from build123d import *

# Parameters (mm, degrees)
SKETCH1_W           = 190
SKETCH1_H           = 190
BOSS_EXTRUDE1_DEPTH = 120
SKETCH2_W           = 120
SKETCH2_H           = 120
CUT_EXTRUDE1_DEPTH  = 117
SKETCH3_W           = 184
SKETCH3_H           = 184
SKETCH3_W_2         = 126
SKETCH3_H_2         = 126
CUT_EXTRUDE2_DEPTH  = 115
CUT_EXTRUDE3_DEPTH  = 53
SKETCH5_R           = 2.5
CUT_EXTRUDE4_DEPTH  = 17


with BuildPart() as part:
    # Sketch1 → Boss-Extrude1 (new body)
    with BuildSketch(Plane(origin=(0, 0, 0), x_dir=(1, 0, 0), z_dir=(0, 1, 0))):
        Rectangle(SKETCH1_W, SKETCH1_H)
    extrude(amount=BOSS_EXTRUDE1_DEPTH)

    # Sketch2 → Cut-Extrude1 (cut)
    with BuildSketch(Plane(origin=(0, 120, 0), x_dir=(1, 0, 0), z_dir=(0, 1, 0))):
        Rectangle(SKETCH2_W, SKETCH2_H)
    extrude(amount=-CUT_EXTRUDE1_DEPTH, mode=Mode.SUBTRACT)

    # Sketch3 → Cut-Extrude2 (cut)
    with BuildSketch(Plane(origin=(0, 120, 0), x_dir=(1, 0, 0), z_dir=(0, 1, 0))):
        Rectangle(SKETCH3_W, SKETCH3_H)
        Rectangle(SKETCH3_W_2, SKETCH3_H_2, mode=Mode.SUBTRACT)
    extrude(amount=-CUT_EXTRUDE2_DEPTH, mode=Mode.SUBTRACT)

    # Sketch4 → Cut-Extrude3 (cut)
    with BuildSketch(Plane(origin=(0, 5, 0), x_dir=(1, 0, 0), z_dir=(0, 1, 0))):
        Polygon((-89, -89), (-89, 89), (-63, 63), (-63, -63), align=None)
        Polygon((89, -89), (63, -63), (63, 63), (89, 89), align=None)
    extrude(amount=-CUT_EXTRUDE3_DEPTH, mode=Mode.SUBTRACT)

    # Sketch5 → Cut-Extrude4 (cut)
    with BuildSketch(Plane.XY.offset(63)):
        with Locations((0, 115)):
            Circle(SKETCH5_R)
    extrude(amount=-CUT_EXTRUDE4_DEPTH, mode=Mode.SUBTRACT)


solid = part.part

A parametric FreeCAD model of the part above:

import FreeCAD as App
import Part
import Sketcher


def add_polygon(sketch, points):
    """Adds a closed chain of lines whose ends are joined by coincident constraints."""
    first, n = sketch.GeometryCount, len(points)
    for a, b in zip(points, points[1:] + points[:1]):
        sketch.addGeometry(Part.LineSegment(App.Vector(*a, 0), App.Vector(*b, 0)), False)
    for i in range(n):
        sketch.addConstraint(Sketcher.Constraint("Coincident", first + i, 2, first + (i + 1) % n, 1))

doc = App.newDocument("Part")
body = doc.addObject("PartDesign::Body", "Body")

# Sketch on XZ plane
sketch1 = body.newObject("Sketcher::SketchObject", "Sketch")
sketch1.AttachmentSupport = (doc.getObject("XZ_Plane"), [""])
sketch1.MapMode = "FlatFace"
add_polygon(sketch1, [(-95, -95), (-95, 95), (95, 95), (95, -95)])  # lines 0-3
sketch1.addConstraint([
    Sketcher.Constraint("Vertical", 0),
    Sketcher.Constraint("Horizontal", 1),
    Sketcher.Constraint("Vertical", 2),
    Sketcher.Constraint("Horizontal", 3),
    Sketcher.Constraint("Symmetric", 0, 2, 2, 2, -1, 1),
    Sketcher.Constraint("Equal", 3, 0),
    Sketcher.Constraint("DistanceX", 1, 1, 1, 2, 190.0),
])
pad1 = body.newObject("PartDesign::Pad", "Pad")
pad1.Profile = sketch1
pad1.Length = 120
pad1.Reversed = True

# Sketch on XZ plane
sketch2 = body.newObject("Sketcher::SketchObject", "Sketch001")
sketch2.AttachmentSupport = (doc.getObject("XZ_Plane"), [""])
sketch2.MapMode = "FlatFace"
sketch2.AttachmentOffset = App.Placement(App.Vector(0, 0, -120), App.Rotation())
add_polygon(sketch2, [(-60, -60), (-60, 60), (60, 60), (60, -60)])  # lines 0-3
sketch2.addConstraint([
    Sketcher.Constraint("Vertical", 0),
    Sketcher.Constraint("Horizontal", 1),
    Sketcher.Constraint("Vertical", 2),
    Sketcher.Constraint("Horizontal", 3),
    Sketcher.Constraint("Symmetric", 0, 2, 2, 2, -1, 1),
    Sketcher.Constraint("Equal", 3, 0),
    Sketcher.Constraint("DistanceX", 1, 1, 1, 2, 120.0),
])
pocket1 = body.newObject("PartDesign::Pocket", "Pocket")
pocket1.Profile = sketch2
pocket1.Length = 117
pocket1.Reversed = True

# Sketch on XZ plane
sketch3 = body.newObject("Sketcher::SketchObject", "Sketch002")
sketch3.AttachmentSupport = (doc.getObject("XZ_Plane"), [""])
sketch3.MapMode = "FlatFace"
sketch3.AttachmentOffset = App.Placement(App.Vector(0, 0, -120), App.Rotation())
add_polygon(sketch3, [(-92, -92), (-92, 92), (92, 92), (92, -92)])  # lines 0-3
add_polygon(sketch3, [(63, 63), (-63, 63), (-63, -63), (63, -63)])  # lines 4-7
sketch3.addConstraint([
    Sketcher.Constraint("Vertical", 0),
    Sketcher.Constraint("Horizontal", 1),
    Sketcher.Constraint("Vertical", 2),
    Sketcher.Constraint("Horizontal", 3),
    Sketcher.Constraint("Horizontal", 4),
    Sketcher.Constraint("Vertical", 5),
    Sketcher.Constraint("Horizontal", 6),
    Sketcher.Constraint("Vertical", 7),
    Sketcher.Constraint("Symmetric", 0, 2, 2, 2, -1, 1),
    Sketcher.Constraint("Symmetric", 4, 2, 6, 2, -1, 1),
    Sketcher.Constraint("Equal", 3, 0),
    Sketcher.Constraint("Equal", 6, 5),
    Sketcher.Constraint("DistanceX", 1, 1, 1, 2, 184.0),
    Sketcher.Constraint("DistanceX", 4, 2, 4, 1, 126.0),
])
pocket2 = body.newObject("PartDesign::Pocket", "Pocket001")
pocket2.Profile = sketch3
pocket2.Length = 115
pocket2.Reversed = True

# Sketch on XZ plane
sketch4 = body.newObject("Sketcher::SketchObject", "Sketch003")
sketch4.AttachmentSupport = (doc.getObject("XZ_Plane"), [""])
sketch4.MapMode = "FlatFace"
sketch4.AttachmentOffset = App.Placement(App.Vector(0, 0, -5), App.Rotation())
add_polygon(sketch4, [(-89, -89), (-89, 89), (-63, 63), (-63, -63)])  # lines 0-3
add_polygon(sketch4, [(63, 63), (89, 89), (89, -89), (63, -63)])  # lines 4-7
sketch4.addConstraint([
    Sketcher.Constraint("Vertical", 0),
    Sketcher.Constraint("Vertical", 2),
    Sketcher.Constraint("Vertical", 5),
    Sketcher.Constraint("Vertical", 7),
    Sketcher.Constraint("Symmetric", 3, 2, 4, 2, -1, 1),
    Sketcher.Constraint("Symmetric", 1, 2, 6, 2, -1, 1),
    Sketcher.Constraint("Perpendicular", 1, 3),
    Sketcher.Constraint("Parallel", 3, 4),
    Sketcher.Constraint("Perpendicular", 4, 6),
    Sketcher.Constraint("Horizontal", 0, 2, 4, 2),
    Sketcher.Constraint("Horizontal", 2, 2, 6, 2),
    Sketcher.Constraint("DistanceY", 0, 1, 0, 2, 178.0),
    Sketcher.Constraint("DistanceY", 2, 2, 2, 1, 126.0),
    Sketcher.Constraint("DistanceX", 0, 2, -1, 1, 89.0),
])
pocket3 = body.newObject("PartDesign::Pocket", "Pocket002")
pocket3.Profile = sketch4
pocket3.Length = 53
pocket3.Reversed = True

# Sketch on XY plane
sketch5 = body.newObject("Sketcher::SketchObject", "Sketch004")
sketch5.AttachmentSupport = (doc.getObject("XY_Plane"), [""])
sketch5.MapMode = "FlatFace"
sketch5.AttachmentOffset = App.Placement(App.Vector(0, 0, 63), App.Rotation())
sketch5.addGeometry(Part.Circle(App.Vector(0, 115, 0), App.Vector(0, 0, 1), 2.5), False)
sketch5.addConstraint([
    Sketcher.Constraint("PointOnObject", 0, 3, -2),
    Sketcher.Constraint("Diameter", 0, 5.0),
    Sketcher.Constraint("DistanceY", -1, 1, 0, 3, 115.0),
])
pocket4 = body.newObject("PartDesign::Pocket", "Pocket003")
pocket4.Profile = sketch5
pocket4.Length = 17

doc.recompute()
